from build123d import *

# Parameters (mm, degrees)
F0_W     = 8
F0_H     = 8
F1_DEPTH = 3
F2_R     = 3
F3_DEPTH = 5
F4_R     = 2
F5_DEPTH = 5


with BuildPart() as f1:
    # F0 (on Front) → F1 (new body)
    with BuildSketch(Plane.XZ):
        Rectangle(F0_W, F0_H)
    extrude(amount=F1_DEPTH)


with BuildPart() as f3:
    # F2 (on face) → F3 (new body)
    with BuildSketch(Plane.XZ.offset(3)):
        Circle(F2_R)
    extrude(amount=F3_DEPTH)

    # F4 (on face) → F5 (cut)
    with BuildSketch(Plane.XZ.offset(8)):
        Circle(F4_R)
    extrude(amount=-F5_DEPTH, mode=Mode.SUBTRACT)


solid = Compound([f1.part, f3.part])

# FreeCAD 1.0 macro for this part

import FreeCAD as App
import Part
import Sketcher

V = App.Vector

doc = App.newDocument("Part")
params = doc.addObject("Spreadsheet::Sheet", "Params")
for row, (alias, value) in enumerate([
    ("sketch1_width", "8 mm"),
    ("pad1_length", "3 mm"),
    ("sketch2_diameter", "6 mm"),
    ("pad2_length", "5 mm"),
    ("sketch3_diameter", "4 mm"),
    ("pocket1_length", "5 mm"),
], start=1):
    params.set(f"A{row}", alias)
    params.set(f"B{row}", "=" + value)
    params.setAlias(f"B{row}", alias)

body = doc.addObject("PartDesign::Body", "Body")

# Sketch on XZ plane
sketch1 = body.newObject("Sketcher::SketchObject", "Sketch")
sketch1.AttachmentSupport = (doc.getObject("XZ_Plane"), [""])
sketch1.MapMode = "FlatFace"
sketch1.addGeometry(Part.LineSegment(V(-4, 4, 0), V(-4, -4, 0)), False)
sketch1.addGeometry(Part.LineSegment(V(-4, -4, 0), V(4, -4, 0)), False)
sketch1.addGeometry(Part.LineSegment(V(4, -4, 0), V(4, 4, 0)), False)
sketch1.addGeometry(Part.LineSegment(V(4, 4, 0), V(-4, 4, 0)), False)
sketch1.addConstraint(Sketcher.Constraint("Coincident", 0, 2, 1, 1))
sketch1.addConstraint(Sketcher.Constraint("Coincident", 1, 2, 2, 1))
sketch1.addConstraint(Sketcher.Constraint("Coincident", 2, 2, 3, 1))
sketch1.addConstraint(Sketcher.Constraint("Coincident", 3, 2, 0, 1))
sketch1.addConstraint(Sketcher.Constraint("Vertical", 0))
sketch1.addConstraint(Sketcher.Constraint("Horizontal", 1))
sketch1.addConstraint(Sketcher.Constraint("Vertical", 2))
sketch1.addConstraint(Sketcher.Constraint("Horizontal", 3))
sketch1.addConstraint(Sketcher.Constraint("Symmetric", 0, 2, 2, 2, -1, 1))
sketch1.addConstraint(Sketcher.Constraint("Equal", 3, 0))
sketch1.addConstraint(Sketcher.Constraint("DistanceX", 1, 1, 1, 2, 8.0))
sketch1.setExpression("Constraints[10]", "Params.sketch1_width")
pad1 = body.newObject("PartDesign::Pad", "Pad")
pad1.Profile = sketch1
pad1.setExpression("Length", "Params.pad1_length")
body2 = doc.addObject("PartDesign::Body", "Body001")

# Sketch on XZ plane
sketch2 = body2.newObject("Sketcher::SketchObject", "Sketch001")
sketch2.AttachmentSupport = (doc.getObject("XZ_Plane001"), [""])
sketch2.MapMode = "FlatFace"
sketch2.AttachmentOffset = App.Placement(V(0, 0, 3), App.Rotation())
sketch2.addGeometry(Part.Circle(V(0, 0, 0), V(0, 0, 1), 3), False)
sketch2.addConstraint(Sketcher.Constraint("Coincident", 0, 3, -1, 1))
sketch2.addConstraint(Sketcher.Constraint("Diameter", 0, 6.0))
sketch2.setExpression("Constraints[1]", "Params.sketch2_diameter")
pad2 = body2.newObject("PartDesign::Pad", "Pad001")
pad2.Profile = sketch2
pad2.setExpression("Length", "Params.pad2_length")

# Sketch on XZ plane
sketch3 = body2.newObject("Sketcher::SketchObject", "Sketch002")
sketch3.AttachmentSupport = (doc.getObject("XZ_Plane001"), [""])
sketch3.MapMode = "FlatFace"
sketch3.AttachmentOffset = App.Placement(V(0, 0, 8), App.Rotation())
sketch3.addGeometry(Part.Circle(V(0, 0, 0), V(0, 0, 1), 2), False)
sketch3.addConstraint(Sketcher.Constraint("Coincident", 0, 3, -1, 1))
sketch3.addConstraint(Sketcher.Constraint("Diameter", 0, 4.0))
sketch3.setExpression("Constraints[1]", "Params.sketch3_diameter")
pocket1 = body2.newObject("PartDesign::Pocket", "Pocket")
pocket1.Profile = sketch3
pocket1.setExpression("Length", "Params.pocket1_length")

doc.recompute()
